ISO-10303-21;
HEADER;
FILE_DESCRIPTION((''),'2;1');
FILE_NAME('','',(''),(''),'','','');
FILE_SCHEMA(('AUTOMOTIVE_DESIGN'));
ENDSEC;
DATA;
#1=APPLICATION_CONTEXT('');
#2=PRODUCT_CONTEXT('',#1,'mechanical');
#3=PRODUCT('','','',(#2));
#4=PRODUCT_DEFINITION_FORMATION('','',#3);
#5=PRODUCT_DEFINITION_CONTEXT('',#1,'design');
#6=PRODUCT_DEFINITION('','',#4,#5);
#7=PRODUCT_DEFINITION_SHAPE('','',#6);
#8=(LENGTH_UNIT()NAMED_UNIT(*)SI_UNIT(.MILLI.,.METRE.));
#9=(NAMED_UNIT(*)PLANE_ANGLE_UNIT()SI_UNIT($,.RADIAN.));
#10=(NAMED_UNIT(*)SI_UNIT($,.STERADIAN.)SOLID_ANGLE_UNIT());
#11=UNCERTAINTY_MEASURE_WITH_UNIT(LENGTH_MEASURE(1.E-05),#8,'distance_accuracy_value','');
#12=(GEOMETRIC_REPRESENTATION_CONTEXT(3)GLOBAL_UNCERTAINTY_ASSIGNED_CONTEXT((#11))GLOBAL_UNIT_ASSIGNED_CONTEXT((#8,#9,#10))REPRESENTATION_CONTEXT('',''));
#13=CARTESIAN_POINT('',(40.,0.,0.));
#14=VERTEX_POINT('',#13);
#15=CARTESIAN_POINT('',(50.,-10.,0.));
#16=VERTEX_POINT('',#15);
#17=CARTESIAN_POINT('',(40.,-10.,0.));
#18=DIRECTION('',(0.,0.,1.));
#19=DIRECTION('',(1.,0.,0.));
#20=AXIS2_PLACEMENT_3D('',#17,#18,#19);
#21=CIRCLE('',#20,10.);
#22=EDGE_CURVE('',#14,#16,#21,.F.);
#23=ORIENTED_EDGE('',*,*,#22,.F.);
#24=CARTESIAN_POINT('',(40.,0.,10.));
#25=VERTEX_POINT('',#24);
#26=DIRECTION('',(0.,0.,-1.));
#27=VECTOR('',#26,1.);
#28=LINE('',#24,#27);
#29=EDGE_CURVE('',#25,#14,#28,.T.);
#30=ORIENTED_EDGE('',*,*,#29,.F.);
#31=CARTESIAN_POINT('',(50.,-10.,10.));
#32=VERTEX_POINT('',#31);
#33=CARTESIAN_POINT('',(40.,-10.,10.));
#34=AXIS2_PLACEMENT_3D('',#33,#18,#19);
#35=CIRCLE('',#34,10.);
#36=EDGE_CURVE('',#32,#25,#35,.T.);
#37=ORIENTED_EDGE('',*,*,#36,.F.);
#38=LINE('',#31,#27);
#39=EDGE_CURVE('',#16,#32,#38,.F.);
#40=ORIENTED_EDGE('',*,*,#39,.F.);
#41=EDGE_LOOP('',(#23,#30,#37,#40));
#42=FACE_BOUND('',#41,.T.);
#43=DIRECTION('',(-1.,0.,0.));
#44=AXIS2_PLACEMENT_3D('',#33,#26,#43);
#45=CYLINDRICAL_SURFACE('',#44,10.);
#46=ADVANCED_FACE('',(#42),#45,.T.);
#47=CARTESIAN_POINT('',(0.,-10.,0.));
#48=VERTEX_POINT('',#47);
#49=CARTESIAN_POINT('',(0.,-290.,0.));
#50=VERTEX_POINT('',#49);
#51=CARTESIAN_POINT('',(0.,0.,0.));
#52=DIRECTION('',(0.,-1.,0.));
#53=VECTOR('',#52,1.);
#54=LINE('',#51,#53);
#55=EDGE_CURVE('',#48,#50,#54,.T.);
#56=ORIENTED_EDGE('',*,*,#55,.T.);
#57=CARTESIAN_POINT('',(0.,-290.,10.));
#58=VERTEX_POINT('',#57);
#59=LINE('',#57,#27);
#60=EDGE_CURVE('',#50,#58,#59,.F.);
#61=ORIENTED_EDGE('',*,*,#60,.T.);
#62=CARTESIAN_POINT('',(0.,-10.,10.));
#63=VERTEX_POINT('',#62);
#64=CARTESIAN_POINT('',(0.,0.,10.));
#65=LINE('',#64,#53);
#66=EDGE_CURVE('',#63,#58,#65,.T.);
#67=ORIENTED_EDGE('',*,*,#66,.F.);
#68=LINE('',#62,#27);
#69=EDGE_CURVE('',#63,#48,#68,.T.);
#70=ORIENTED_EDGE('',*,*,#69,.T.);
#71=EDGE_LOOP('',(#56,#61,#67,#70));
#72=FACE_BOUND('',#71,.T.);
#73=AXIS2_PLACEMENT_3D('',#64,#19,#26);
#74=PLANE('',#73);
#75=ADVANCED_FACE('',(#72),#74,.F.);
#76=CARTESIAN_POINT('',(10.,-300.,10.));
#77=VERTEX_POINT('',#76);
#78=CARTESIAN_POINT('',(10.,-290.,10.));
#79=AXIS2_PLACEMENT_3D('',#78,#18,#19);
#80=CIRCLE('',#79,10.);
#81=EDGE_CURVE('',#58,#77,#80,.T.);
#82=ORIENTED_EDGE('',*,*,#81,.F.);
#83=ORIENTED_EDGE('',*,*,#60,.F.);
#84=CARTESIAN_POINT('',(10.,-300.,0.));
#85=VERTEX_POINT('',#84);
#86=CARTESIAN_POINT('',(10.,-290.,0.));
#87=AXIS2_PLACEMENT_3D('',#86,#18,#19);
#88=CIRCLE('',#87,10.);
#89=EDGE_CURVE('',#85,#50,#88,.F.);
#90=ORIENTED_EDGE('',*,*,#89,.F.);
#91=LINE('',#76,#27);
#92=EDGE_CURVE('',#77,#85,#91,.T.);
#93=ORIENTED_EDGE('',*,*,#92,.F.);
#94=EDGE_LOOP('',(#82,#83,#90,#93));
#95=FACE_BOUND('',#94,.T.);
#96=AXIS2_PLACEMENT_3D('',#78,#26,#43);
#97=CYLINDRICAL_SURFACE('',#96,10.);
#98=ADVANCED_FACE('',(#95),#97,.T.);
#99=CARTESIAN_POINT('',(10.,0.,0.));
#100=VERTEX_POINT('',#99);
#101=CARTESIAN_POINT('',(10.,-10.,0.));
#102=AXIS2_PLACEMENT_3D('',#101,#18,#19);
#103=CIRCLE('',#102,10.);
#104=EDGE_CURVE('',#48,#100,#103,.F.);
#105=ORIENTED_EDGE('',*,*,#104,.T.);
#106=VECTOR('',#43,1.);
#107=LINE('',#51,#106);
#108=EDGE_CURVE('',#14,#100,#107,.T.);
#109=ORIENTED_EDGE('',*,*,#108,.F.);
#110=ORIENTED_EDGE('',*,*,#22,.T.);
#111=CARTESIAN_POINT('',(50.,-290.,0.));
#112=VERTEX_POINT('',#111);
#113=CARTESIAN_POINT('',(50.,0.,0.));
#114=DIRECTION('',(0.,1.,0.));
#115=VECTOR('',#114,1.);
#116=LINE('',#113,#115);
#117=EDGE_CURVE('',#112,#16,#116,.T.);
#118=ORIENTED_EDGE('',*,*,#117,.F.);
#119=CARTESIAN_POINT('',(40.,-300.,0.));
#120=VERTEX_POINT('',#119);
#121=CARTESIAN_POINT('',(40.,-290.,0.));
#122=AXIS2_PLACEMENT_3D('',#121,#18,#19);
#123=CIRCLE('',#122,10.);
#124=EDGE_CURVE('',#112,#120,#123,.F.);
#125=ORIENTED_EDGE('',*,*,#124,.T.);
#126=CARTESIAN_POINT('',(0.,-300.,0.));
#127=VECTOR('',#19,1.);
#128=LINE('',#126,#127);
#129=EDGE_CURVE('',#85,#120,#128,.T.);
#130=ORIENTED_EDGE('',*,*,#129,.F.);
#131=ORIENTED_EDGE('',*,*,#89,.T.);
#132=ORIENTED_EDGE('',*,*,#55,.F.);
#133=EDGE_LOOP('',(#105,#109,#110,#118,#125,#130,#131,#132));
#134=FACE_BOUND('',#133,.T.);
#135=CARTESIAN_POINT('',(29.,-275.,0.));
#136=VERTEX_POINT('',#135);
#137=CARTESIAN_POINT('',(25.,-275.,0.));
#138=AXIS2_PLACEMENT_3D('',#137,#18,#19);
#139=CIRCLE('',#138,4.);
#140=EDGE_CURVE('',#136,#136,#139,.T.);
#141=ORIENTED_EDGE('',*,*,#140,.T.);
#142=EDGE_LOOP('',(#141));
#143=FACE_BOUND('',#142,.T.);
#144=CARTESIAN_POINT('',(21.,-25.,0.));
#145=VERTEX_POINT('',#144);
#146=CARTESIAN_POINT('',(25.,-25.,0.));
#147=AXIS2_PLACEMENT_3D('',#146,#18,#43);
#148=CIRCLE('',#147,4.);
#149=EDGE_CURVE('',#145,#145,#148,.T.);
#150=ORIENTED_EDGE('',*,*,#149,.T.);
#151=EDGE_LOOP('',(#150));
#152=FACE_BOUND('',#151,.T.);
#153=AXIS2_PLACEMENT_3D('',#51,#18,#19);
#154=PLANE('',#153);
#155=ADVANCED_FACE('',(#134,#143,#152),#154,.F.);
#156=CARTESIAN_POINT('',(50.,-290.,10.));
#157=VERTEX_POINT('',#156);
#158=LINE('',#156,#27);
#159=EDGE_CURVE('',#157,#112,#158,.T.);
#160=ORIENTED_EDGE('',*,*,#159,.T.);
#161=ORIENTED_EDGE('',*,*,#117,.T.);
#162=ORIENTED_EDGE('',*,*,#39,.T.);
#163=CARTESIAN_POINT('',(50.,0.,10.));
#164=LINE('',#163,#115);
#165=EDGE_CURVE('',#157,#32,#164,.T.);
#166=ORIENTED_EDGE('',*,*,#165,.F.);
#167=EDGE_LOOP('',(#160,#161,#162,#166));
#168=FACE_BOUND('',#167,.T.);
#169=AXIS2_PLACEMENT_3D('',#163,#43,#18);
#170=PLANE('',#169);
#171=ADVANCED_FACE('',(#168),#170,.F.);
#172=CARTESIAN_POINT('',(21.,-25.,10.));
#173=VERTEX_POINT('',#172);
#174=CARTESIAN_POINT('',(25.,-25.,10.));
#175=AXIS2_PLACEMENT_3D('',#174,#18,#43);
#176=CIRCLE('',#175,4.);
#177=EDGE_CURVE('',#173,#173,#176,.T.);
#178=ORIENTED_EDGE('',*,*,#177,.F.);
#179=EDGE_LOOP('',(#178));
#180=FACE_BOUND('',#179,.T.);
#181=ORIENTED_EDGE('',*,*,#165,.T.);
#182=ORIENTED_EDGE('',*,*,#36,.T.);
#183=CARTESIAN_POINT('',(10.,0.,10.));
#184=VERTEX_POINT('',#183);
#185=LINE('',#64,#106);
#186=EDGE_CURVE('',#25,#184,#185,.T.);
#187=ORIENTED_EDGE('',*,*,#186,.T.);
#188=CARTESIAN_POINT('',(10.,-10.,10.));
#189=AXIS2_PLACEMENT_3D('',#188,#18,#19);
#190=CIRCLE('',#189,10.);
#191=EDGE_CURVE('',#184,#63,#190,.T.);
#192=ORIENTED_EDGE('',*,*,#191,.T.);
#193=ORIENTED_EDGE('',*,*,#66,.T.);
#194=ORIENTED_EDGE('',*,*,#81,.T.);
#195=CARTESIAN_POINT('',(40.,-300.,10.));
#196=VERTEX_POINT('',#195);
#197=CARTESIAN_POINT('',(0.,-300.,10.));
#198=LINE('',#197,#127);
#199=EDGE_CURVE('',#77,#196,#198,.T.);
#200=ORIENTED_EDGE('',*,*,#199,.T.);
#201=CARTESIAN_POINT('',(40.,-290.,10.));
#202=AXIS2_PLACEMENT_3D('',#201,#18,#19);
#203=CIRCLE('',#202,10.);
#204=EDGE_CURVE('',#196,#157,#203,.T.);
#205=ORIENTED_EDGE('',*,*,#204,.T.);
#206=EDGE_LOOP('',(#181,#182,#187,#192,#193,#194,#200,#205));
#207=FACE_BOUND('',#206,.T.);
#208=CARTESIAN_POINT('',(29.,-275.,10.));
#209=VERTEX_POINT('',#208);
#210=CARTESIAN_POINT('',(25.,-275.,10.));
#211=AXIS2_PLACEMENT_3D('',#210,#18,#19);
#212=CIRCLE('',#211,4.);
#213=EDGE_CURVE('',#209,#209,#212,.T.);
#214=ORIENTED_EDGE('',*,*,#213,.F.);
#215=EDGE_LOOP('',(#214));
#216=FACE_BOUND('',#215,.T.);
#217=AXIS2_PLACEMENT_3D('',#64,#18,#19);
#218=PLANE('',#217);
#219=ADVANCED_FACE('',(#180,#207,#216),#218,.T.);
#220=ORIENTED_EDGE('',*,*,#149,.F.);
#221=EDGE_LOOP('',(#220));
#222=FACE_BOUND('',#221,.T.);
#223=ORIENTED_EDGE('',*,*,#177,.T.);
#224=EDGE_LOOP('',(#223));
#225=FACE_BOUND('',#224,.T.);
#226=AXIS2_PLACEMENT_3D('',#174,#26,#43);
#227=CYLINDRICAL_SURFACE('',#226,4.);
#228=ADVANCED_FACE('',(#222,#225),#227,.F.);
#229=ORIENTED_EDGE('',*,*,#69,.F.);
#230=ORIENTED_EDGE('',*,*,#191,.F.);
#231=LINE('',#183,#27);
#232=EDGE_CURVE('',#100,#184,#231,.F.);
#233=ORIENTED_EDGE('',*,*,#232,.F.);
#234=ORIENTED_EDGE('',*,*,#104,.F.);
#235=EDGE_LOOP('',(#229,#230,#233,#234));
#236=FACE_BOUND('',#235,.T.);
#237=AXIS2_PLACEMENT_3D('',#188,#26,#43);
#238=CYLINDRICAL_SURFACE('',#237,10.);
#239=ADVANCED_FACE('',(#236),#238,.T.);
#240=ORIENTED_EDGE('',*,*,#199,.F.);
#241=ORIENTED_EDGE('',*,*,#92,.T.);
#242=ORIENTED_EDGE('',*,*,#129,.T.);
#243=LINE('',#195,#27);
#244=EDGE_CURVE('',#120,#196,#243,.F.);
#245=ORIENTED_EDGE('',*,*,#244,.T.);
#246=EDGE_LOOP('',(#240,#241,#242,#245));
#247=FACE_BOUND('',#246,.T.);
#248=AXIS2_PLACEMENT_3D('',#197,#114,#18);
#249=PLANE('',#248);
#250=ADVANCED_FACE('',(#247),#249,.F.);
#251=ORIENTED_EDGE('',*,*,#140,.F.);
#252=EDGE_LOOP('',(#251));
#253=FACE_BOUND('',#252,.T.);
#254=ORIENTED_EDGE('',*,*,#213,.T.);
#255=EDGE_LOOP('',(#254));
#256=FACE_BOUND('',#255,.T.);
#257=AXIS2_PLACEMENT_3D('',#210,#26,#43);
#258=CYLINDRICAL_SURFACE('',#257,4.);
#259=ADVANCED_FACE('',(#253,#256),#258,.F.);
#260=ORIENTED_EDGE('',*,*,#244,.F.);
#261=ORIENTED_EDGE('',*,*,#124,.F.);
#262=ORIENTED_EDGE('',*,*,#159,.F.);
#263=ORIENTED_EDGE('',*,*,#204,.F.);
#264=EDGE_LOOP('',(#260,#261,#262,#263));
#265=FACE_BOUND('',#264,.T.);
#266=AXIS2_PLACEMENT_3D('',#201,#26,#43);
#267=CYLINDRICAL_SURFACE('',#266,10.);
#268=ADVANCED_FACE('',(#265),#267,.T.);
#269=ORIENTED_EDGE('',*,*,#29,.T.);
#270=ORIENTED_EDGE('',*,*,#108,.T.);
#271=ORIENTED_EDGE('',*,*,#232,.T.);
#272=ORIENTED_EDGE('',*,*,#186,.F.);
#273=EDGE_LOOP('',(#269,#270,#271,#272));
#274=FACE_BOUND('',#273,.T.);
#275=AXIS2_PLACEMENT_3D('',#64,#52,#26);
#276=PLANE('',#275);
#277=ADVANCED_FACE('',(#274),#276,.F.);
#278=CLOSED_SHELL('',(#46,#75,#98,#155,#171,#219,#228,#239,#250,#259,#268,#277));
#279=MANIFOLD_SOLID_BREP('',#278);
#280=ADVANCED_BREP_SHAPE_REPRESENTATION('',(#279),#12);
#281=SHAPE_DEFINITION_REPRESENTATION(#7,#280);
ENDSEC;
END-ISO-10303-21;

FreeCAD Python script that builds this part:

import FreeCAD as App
import Part
import Sketcher
from FreeCAD import Vector
Q = App.Units.Quantity


def edges_at(feature, points):
    """Names of the edges that pass closest to the given points."""
    edges = feature.Shape.Edges
    near = lambda p: min(range(len(edges)), key=lambda i: edges[i].distToShape(Part.Vertex(*p))[0])
    return sorted({f"Edge{near(p) + 1}" for p in points})


def add_polygon(sketch, points):
    """Adds a closed chain of lines whose ends are joined by coincident constraints."""
    first, n = sketch.GeometryCount, len(points)
    for a, b in zip(points, points[1:] + points[:1]):
        sketch.addGeometry(Part.LineSegment(App.Vector(*a, 0), App.Vector(*b, 0)), False)
    for i in range(n):
        sketch.addConstraint(Sketcher.Constraint("Coincident", first + i, 2, first + (i + 1) % n, 1))

doc = App.newDocument("Part")
params = doc.addObject("Spreadsheet::Sheet", "Params")
for row, (alias, value) in enumerate([
    ("sketch1_diameter", "8 mm"),
    ("sketch1_width", "50 mm"),
    ("sketch1_height", "300 mm"),
    ("pad1_length", "10 mm"),
    ("fillet_radius", "10 mm"),
], start=1):
    params.set(f"A{row}", alias)
    params.set(f"B{row}", "=" + value)
    params.setAlias(f"B{row}", alias)

body = doc.addObject("PartDesign::Body", "Body")

# Sketch on XY plane
sketch1 = body.newObject("Sketcher::SketchObject", "Sketch")
sketch1.AttachmentSupport = (doc.getObject("XY_Plane"), [""])
sketch1.MapMode = "FlatFace"
add_polygon(sketch1, [(0, 0), (0, -300), (50, -300), (50, 0)])  # lines 0-3
sketch1.addGeometry(Part.Circle(Vector(25, -275, 0), Vector(0, 0, 1), 4), False)  # 4
sketch1.addGeometry(Part.Circle(Vector(25, -25, 0), Vector(0, 0, 1), 4), False)  # 5
sketch1.addConstraint(Sketcher.Constraint("Vertical", 0))
sketch1.addConstraint(Sketcher.Constraint("Horizontal", 1))
sketch1.addConstraint(Sketcher.Constraint("Vertical", 2))
sketch1.addConstraint(Sketcher.Constraint("Horizontal", 3))
sketch1.addConstraint(Sketcher.Constraint("Coincident", 3, 2, -1, 1))
sketch1.addConstraint(Sketcher.Constraint("Equal", 4, 5))
sketch1.addConstraint(Sketcher.Constraint("Vertical", 4, 3, 5, 3))
sketch1.addConstraint(Sketcher.Constraint("Diameter", 4, Q("8 mm")))
sketch1.addConstraint(Sketcher.Constraint("DistanceX", 1, 1, 1, 2, Q("50 mm")))
sketch1.addConstraint(Sketcher.Constraint("DistanceY", 0, 2, 0, 1, Q("300 mm")))
sketch1.addConstraint(Sketcher.Constraint("DistanceX", -1, 1, 4, 3, Q("25 mm")))
sketch1.addConstraint(Sketcher.Constraint("DistanceY", 4, 3, -1, 1, Q("275 mm")))
sketch1.addConstraint(Sketcher.Constraint("DistanceY", 5, 3, -1, 1, Q("25 mm")))
sketch1.setExpression("Constraints[11]", "Params.sketch1_diameter")
sketch1.setExpression("Constraints[12]", "Params.sketch1_width")
sketch1.setExpression("Constraints[13]", "Params.sketch1_height")
pad1 = body.newObject("PartDesign::Pad", "Pad")
pad1.Profile = sketch1
pad1.setExpression("Length", "Params.pad1_length")
doc.recompute()

fillet = body.newObject("PartDesign::Fillet", "Fillet")
fillet.Base = (pad1, edges_at(pad1, [
    (0, 0, 5),
    (50, 0, 5),
    (50, -300, 5),
    (0, -300, 5),
]))
fillet.setExpression("Radius", "Params.fillet_radius")

doc.recompute()
